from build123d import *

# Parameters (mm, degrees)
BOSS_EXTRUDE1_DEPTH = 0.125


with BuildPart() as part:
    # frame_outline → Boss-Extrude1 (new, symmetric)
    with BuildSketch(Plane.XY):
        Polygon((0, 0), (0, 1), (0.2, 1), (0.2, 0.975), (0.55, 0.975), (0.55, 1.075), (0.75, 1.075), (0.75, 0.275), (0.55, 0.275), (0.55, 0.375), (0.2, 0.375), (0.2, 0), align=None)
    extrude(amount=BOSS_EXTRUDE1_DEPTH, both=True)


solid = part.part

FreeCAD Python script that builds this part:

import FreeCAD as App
import Part
import Sketcher


def add_polygon(sketch, points):
    """Adds a closed chain of lines whose ends are joined by coincident constraints."""
    first, n = sketch.GeometryCount, len(points)
    for a, b in zip(points, points[1:] + points[:1]):
        sketch.addGeometry(Part.LineSegment(App.Vector(*a, 0), App.Vector(*b, 0)), False)
    for i in range(n):
        sketch.addConstraint(Sketcher.Constraint("Coincident", first + i, 2, first + (i + 1) % n, 1))

doc = App.newDocument("Part")
params = doc.addObject("Spreadsheet::Sheet", "Params")
for row, (alias, value) in enumerate([
    ("sketch1_height", "1 mm"),
    ("sketch1_width", "0.2 mm"),
    ("sketch1_height2", "0.1 mm"),
    ("sketch1_height3", "0.8 mm"),
    ("sketch1_width2", "0.35 mm"),
    ("pad1_length", "0.25 mm"),
], start=1):
    params.set(f"A{row}", alias)
    params.set(f"B{row}", "=" + value)
    params.setAlias(f"B{row}", alias)

body = doc.addObject("PartDesign::Body", "Body")

sketch1 = body.newObject("Sketcher::SketchObject", "Sketch")
sketch1.AttachmentSupport = (doc.getObject("XY_Plane"), [""])
sketch1.MapMode = "FlatFace"
add_polygon(sketch1, [(0, 1), (0, 0), (0.2, 0), (0.2, 0.375), (0.55, 0.375), (0.55, 0.275), (0.75, 0.275), (0.75, 1.075), (0.55, 1.075), (0.55, 0.975), (0.2, 0.975), (0.2, 1)])
sketch1.addConstraint(Sketcher.Constraint("Vertical", 0))
sketch1.addConstraint(Sketcher.Constraint("Horizontal", 1))
sketch1.addConstraint(Sketcher.Constraint("Vertical", 2))
sketch1.addConstraint(Sketcher.Constraint("Horizontal", 3))
sketch1.addConstraint(Sketcher.Constraint("Vertical", 4))
sketch1.addConstraint(Sketcher.Constraint("Horizontal", 5))
sketch1.addConstraint(Sketcher.Constraint("Vertical", 6))
sketch1.addConstraint(Sketcher.Constraint("Horizontal", 7))
sketch1.addConstraint(Sketcher.Constraint("Vertical", 8))
sketch1.addConstraint(Sketcher.Constraint("Horizontal", 9))
sketch1.addConstraint(Sketcher.Constraint("Vertical", 10))
sketch1.addConstraint(Sketcher.Constraint("Horizontal", 11))
sketch1.addConstraint(Sketcher.Constraint("Coincident", 0, 2, -1, 1))
sketch1.addConstraint(Sketcher.Constraint("Vertical", 4, 2, 7, 2))
sketch1.addConstraint(Sketcher.Constraint("Vertical", 2, 2, 9, 2))
sketch1.addConstraint(Sketcher.Constraint("Equal", 1, 5))
sketch1.addConstraint(Sketcher.Constraint("Equal", 4, 8))
sketch1.addConstraint(Sketcher.Constraint("DistanceY", 0, 2, 0, 1, 1.0))
sketch1.addConstraint(Sketcher.Constraint("DistanceX", 1, 1, 1, 2, 0.2))
sketch1.addConstraint(Sketcher.Constraint("DistanceY", 4, 2, 4, 1, 0.1))
sketch1.addConstraint(Sketcher.Constraint("DistanceY", 6, 1, 6, 2, 0.8))
sketch1.addConstraint(Sketcher.Constraint("DistanceX", 3, 1, 3, 2, 0.35))
sketch1.addConstraint(Sketcher.Constraint("DistanceY", 2, 1, 2, 2, 0.375))
sketch1.setExpression("Constraints[29]", "Params.sketch1_height")
sketch1.setExpression("Constraints[30]", "Params.sketch1_width")
sketch1.setExpression("Constraints[31]", "Params.sketch1_height2")
sketch1.setExpression("Constraints[32]", "Params.sketch1_height3")
sketch1.setExpression("Constraints[33]", "Params.sketch1_width2")
pad1 = body.newObject("PartDesign::Pad", "Pad")
pad1.Profile = sketch1
pad1.setExpression("Length", "Params.pad1_length")
pad1.Midplane = True

doc.recompute()
